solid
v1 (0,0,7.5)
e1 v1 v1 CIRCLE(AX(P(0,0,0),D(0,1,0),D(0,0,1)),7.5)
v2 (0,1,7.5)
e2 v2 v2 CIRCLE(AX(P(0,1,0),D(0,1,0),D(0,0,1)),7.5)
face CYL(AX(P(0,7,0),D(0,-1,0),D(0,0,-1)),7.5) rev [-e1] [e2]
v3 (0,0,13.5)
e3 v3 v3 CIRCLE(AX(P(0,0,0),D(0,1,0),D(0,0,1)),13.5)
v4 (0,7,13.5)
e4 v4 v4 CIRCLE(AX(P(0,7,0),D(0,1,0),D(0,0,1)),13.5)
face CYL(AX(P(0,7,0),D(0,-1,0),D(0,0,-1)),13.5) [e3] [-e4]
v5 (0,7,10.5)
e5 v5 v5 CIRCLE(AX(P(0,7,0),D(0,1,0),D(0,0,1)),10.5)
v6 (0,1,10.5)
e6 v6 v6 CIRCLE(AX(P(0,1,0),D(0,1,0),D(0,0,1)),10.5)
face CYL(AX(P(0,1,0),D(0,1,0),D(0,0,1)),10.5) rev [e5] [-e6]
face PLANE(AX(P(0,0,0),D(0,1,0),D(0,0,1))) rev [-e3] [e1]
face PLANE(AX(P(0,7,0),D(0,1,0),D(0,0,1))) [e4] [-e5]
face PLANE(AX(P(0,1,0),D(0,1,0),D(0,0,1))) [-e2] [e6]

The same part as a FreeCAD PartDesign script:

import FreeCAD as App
import Part
import Sketcher

V = App.Vector
Q = App.Units.Quantity

doc = App.newDocument("Part")
params = doc.addObject("Spreadsheet::Sheet", "Params")
for row, (alias, value) in enumerate([
    ("sketch1_diameter", "27 mm"),
    ("sketch1_diameter2", "15 mm"),
    ("pad1_length", "7 mm"),
    ("sketch2_diameter", "21 mm"),
    ("pocket1_length", "6 mm"),
], start=1):
    params.set(f"A{row}", alias)
    params.set(f"B{row}", "=" + value)
    params.setAlias(f"B{row}", alias)

body = doc.addObject("PartDesign::Body", "Body")

# Sketch on XZ plane
sketch1 = body.newObject("Sketcher::SketchObject", "Sketch")
sketch1.AttachmentSupport = (doc.getObject("XZ_Plane"), [""])
sketch1.MapMode = "FlatFace"
sketch1.addGeometry(Part.Circle(V(0, 0, 0), V(0, 0, 1), 13.5), False)
sketch1.addGeometry(Part.Circle(V(0, 0, 0), V(0, 0, 1), 7.5), False)
sketch1.addConstraint(Sketcher.Constraint("Coincident", 0, 3, -1, 1))
sketch1.addConstraint(Sketcher.Constraint("Coincident", 1, 3, -1, 1))
sketch1.addConstraint(Sketcher.Constraint("Diameter", 0, Q("27 mm")))
sketch1.addConstraint(Sketcher.Constraint("Diameter", 1, Q("15 mm")))
sketch1.setExpression("Constraints[2]", "Params.sketch1_diameter")
sketch1.setExpression("Constraints[3]", "Params.sketch1_diameter2")
pad1 = body.newObject("PartDesign::Pad", "Pad")
pad1.Profile = sketch1
pad1.setExpression("Length", "Params.pad1_length")
pad1.Reversed = True

# Sketch on XZ plane
sketch2 = body.newObject("Sketcher::SketchObject", "Sketch001")
sketch2.AttachmentSupport = (doc.getObject("XZ_Plane"), [""])
sketch2.MapMode = "FlatFace"
sketch2.AttachmentOffset = App.Placement(V(0, 0, -7), App.Rotation())
sketch2.addGeometry(Part.Circle(V(0, 0, 0), V(0, 0, 1), 10.5), False)
sketch2.addConstraint(Sketcher.Constraint("Coincident", 0, 3, -1, 1))
sketch2.addConstraint(Sketcher.Constraint("Diameter", 0, Q("21 mm")))
sketch2.setExpression("Constraints[1]", "Params.sketch2_diameter")
pocket1 = body.newObject("PartDesign::Pocket", "Pocket")
pocket1.Profile = sketch2
pocket1.setExpression("Length", "Params.pocket1_length")
pocket1.Reversed = True

doc.recompute()
